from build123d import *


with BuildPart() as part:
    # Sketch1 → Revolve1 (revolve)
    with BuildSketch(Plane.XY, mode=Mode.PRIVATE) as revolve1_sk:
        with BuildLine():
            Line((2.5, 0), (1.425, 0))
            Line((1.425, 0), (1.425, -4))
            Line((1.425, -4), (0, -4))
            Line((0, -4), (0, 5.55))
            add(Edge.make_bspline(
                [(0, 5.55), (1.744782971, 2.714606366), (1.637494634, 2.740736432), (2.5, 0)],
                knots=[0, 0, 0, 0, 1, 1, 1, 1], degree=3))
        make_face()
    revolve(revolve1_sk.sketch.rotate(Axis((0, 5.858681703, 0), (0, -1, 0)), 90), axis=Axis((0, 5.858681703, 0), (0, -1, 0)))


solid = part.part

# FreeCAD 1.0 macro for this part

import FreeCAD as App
import Part
import Sketcher
Q = App.Units.Quantity

doc = App.newDocument("Part")
body = doc.addObject("PartDesign::Body", "Body")

sketch1 = doc.addObject("Sketcher::SketchObject", "Sketch")
body.addObject(sketch1)
sketch1.AttachmentSupport = (doc.XY_Plane, [""])
sketch1.MapMode = "FlatFace"
sketch1.addGeometry([
    Part.LineSegment(App.Vector(1.425, 0, 0), App.Vector(2.5, 0, 0)),
    Part.BSplineCurve([App.Vector(0, 5.55, 0), App.Vector(1.744783, 2.714606, 0), App.Vector(1.637495, 2.740736, 0), App.Vector(2.5, 0, 0)], [4, 4], [0, 1], False, 3, [1, 1, 1, 1], False),
    Part.LineSegment(App.Vector(0, 5.55, 0), App.Vector(0, -4, 0)),
    Part.LineSegment(App.Vector(0, -4, 0), App.Vector(1.425, -4, 0)),
    Part.LineSegment(App.Vector(1.425, -4, 0), App.Vector(1.425, 0, 0)),
], False)
sketch1.addConstraint([
    Sketcher.Constraint("Block", 1),
    Sketcher.Constraint("Coincident", 0, 2, 1, 2),
    Sketcher.Constraint("Coincident", 1, 1, 2, 1),
    Sketcher.Constraint("Coincident", 2, 2, 3, 1),
    Sketcher.Constraint("Coincident", 3, 2, 4, 1),
    Sketcher.Constraint("Coincident", 4, 2, 0, 1),
    Sketcher.Constraint("Horizontal", 0),
    Sketcher.Constraint("Vertical", 2),
    Sketcher.Constraint("Horizontal", 3),
    Sketcher.Constraint("Vertical", 4),
    Sketcher.Constraint("DistanceY", 4, 1, 4, 2, Q("4 mm")),
    Sketcher.Constraint("DistanceX", 0, 1, 0, 2, Q("1.075 mm")),
])
revolution = doc.addObject("PartDesign::Revolution", "Revolution")
body.addObject(revolution)
revolution.Profile = sketch1
revolution.ReferenceAxis = (sketch1, ["V_Axis"])
revolution.Angle = 360

doc.recompute()
